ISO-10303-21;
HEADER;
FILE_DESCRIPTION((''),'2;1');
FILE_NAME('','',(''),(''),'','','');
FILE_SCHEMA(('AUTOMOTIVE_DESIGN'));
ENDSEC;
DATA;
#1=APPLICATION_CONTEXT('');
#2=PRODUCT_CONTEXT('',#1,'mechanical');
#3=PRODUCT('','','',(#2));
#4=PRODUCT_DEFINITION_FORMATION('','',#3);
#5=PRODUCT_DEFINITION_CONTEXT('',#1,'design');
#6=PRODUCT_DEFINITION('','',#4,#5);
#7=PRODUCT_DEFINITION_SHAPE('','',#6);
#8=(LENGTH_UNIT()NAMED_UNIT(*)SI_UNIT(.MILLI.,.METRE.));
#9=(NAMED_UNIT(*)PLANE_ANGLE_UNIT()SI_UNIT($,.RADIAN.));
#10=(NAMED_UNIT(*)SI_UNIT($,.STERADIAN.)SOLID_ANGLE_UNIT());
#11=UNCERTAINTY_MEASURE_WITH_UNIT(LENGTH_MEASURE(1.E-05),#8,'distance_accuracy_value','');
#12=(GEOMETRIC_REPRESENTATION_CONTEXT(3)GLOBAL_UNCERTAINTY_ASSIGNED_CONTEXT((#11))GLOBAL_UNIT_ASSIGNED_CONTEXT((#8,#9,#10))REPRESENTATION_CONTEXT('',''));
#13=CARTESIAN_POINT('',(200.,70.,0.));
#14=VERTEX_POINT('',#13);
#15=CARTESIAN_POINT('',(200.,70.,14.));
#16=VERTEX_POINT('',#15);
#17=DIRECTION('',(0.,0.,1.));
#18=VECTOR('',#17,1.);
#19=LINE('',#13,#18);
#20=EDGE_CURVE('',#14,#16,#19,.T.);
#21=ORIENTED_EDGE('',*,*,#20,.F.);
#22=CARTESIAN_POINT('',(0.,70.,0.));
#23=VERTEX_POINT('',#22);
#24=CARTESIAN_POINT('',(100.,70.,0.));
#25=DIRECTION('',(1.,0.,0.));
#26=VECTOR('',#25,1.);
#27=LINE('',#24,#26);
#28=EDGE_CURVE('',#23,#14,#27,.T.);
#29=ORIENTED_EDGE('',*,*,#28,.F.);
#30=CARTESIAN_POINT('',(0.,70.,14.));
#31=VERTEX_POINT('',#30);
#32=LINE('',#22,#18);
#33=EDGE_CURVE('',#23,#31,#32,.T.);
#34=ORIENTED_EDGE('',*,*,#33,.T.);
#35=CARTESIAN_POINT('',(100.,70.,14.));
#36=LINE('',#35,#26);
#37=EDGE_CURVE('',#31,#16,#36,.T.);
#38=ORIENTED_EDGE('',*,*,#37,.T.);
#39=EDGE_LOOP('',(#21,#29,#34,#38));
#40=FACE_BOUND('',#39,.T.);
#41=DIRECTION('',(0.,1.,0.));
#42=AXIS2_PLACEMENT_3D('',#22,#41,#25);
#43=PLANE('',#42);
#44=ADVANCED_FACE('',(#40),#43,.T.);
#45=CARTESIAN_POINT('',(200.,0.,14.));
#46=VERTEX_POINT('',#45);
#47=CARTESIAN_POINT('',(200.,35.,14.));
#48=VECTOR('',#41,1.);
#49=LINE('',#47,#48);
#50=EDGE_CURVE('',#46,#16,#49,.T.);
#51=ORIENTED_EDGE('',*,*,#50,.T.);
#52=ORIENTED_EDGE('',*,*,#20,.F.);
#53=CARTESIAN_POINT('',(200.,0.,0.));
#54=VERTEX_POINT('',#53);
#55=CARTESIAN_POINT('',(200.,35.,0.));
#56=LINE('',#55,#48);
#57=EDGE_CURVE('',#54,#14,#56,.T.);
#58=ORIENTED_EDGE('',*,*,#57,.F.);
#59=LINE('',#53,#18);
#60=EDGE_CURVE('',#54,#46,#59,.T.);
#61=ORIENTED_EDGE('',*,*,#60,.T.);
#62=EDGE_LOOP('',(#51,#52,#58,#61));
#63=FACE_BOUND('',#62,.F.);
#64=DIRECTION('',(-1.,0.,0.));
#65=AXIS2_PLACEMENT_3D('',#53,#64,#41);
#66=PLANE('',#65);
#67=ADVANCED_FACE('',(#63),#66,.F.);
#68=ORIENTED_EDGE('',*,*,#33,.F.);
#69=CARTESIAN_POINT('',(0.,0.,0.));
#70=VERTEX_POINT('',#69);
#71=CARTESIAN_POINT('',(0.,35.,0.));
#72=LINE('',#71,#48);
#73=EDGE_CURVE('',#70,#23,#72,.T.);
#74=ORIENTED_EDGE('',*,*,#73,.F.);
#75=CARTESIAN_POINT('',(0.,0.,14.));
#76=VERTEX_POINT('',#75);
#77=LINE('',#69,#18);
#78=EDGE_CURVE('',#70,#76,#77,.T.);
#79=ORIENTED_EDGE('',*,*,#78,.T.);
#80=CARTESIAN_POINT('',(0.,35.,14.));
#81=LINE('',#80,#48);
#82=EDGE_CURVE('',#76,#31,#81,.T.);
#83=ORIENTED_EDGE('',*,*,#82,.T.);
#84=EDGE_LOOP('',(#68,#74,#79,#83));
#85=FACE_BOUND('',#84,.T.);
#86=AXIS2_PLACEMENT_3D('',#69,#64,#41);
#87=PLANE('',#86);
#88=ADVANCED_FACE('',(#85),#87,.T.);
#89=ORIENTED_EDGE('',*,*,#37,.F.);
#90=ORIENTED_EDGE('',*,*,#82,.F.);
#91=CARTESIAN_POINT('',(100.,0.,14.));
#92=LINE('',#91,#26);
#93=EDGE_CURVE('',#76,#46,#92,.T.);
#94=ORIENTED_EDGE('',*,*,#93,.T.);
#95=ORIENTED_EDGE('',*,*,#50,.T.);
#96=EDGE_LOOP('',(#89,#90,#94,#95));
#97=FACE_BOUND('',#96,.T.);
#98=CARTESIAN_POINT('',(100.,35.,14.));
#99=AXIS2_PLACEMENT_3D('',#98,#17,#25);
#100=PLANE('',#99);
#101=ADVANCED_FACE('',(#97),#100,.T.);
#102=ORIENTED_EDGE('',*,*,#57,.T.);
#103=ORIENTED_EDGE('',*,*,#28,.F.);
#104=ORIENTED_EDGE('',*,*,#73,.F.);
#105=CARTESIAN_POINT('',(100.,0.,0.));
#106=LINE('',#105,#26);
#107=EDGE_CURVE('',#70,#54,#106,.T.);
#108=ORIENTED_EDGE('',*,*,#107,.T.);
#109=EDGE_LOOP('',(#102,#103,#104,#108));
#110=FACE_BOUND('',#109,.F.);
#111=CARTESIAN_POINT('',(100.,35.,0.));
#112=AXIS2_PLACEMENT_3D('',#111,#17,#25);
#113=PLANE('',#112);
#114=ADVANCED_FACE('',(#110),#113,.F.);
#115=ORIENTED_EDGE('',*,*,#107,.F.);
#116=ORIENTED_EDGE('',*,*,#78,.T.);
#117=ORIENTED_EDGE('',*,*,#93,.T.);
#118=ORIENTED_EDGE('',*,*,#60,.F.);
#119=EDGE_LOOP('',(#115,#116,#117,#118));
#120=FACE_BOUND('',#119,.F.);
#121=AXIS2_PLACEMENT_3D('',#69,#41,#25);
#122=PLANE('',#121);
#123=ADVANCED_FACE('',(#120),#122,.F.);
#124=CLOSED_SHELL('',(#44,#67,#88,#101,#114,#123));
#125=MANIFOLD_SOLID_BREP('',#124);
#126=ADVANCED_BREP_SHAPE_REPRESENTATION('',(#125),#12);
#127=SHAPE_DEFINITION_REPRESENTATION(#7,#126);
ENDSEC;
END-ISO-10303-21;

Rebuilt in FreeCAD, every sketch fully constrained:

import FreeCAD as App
import Part
import Sketcher

doc = App.newDocument("Part")
body = doc.addObject("PartDesign::Body", "Body")

sketch1 = body.newObject("Sketcher::SketchObject", "Sketch")
sketch1.AttachmentSupport = (doc.getObject("XY_Plane"), [""])
sketch1.MapMode = "FlatFace"
sketch1.addGeometry([
    Part.LineSegment(App.Vector(0, 70, 0), App.Vector(0, 0, 0)),
    Part.LineSegment(App.Vector(0, 0, 0), App.Vector(200, 0, 0)),
    Part.LineSegment(App.Vector(200, 0, 0), App.Vector(200, 70, 0)),
    Part.LineSegment(App.Vector(200, 70, 0), App.Vector(0, 70, 0)),
], False)
sketch1.addConstraint([
    Sketcher.Constraint("Coincident", 0, 2, 1, 1),
    Sketcher.Constraint("Coincident", 1, 2, 2, 1),
    Sketcher.Constraint("Coincident", 2, 2, 3, 1),
    Sketcher.Constraint("Coincident", 3, 2, 0, 1),
    Sketcher.Constraint("Vertical", 0),
    Sketcher.Constraint("Horizontal", 1),
    Sketcher.Constraint("Vertical", 2),
    Sketcher.Constraint("Horizontal", 3),
    Sketcher.Constraint("Coincident", 0, 2, -1, 1),
    Sketcher.Constraint("DistanceX", 1, 1, 1, 2, 200.0),
    Sketcher.Constraint("DistanceY", 0, 2, 0, 1, 70.0),
])
pad1 = body.newObject("PartDesign::Pad", "Pad")
pad1.Profile = sketch1
pad1.Length = 14

doc.recompute()
